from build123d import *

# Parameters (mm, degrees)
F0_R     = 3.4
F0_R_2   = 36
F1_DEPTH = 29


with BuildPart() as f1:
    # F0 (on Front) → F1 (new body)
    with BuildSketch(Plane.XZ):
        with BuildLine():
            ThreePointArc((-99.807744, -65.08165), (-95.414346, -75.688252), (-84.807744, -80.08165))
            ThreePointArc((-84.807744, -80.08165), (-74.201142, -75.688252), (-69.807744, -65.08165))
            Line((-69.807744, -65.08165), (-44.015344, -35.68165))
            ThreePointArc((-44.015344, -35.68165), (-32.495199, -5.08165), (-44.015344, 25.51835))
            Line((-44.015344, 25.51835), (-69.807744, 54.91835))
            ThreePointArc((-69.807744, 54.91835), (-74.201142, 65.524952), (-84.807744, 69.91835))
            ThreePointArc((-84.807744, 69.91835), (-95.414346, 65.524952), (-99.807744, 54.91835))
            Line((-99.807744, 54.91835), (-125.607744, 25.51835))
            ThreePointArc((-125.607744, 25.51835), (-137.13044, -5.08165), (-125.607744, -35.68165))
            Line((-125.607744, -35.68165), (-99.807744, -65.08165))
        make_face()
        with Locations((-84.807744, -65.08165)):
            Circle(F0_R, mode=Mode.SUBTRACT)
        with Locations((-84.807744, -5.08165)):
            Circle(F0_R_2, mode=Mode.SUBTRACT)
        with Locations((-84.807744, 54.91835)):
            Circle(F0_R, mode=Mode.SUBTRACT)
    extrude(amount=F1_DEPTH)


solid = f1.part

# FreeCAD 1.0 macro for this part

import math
import FreeCAD as App
import Part
import Sketcher
from FreeCAD import Vector
Q = App.Units.Quantity

doc = App.newDocument("Part")
body = doc.addObject("PartDesign::Body", "Body")

# Sketch on XZ plane
sketch1 = body.newObject("Sketcher::SketchObject", "Sketch")
sketch1.AttachmentSupport = (doc.getObject("XZ_Plane"), [""])
sketch1.MapMode = "FlatFace"
sketch1.addGeometry(Part.ArcOfCircle(Part.Circle(Vector(-84.8, -65.1, 0), Vector(0, 0, 1), 15), math.radians(180), math.radians(270)), False)
sketch1.addGeometry(Part.ArcOfCircle(Part.Circle(Vector(-84.8, -65.1, 0), Vector(0, 0, 1), 15), math.radians(-90), math.radians(0)), False)
sketch1.addGeometry(Part.LineSegment(Vector(-69.8, -65.1, 0), Vector(-44, -35.7, 0)), False)
sketch1.addGeometry(Part.ArcOfCircle(Part.Circle(Vector(-78.9, -5.1, 0), Vector(0, 0, 1), 46.4), math.radians(-41), math.radians(41)), False)
sketch1.addGeometry(Part.LineSegment(Vector(-44, 25.5, 0), Vector(-69.8, 54.9, 0)), False)
sketch1.addGeometry(Part.ArcOfCircle(Part.Circle(Vector(-84.8, 54.9, 0), Vector(0, 0, 1), 15), math.radians(0), math.radians(90)), False)
sketch1.addGeometry(Part.ArcOfCircle(Part.Circle(Vector(-84.8, 54.9, 0), Vector(0, 0, 1), 15), math.radians(90), math.radians(180)), False)
sketch1.addGeometry(Part.LineSegment(Vector(-99.8, 54.9, 0), Vector(-125.6, 25.5, 0)), False)
sketch1.addGeometry(Part.ArcOfCircle(Part.Circle(Vector(-90.7, -5.1, 0), Vector(0, 0, 1), 46.4), math.radians(139), math.radians(221)), False)
sketch1.addGeometry(Part.LineSegment(Vector(-125.6, -35.7, 0), Vector(-99.8, -65.1, 0)), False)
sketch1.addGeometry(Part.Circle(Vector(-84.8, -65.1, 0), Vector(0, 0, 1), 3.4), False)
sketch1.addGeometry(Part.Circle(Vector(-84.8, -5.1, 0), Vector(0, 0, 1), 36), False)
sketch1.addGeometry(Part.Circle(Vector(-84.8, 54.9, 0), Vector(0, 0, 1), 3.4), False)
sketch1.addConstraint(Sketcher.Constraint("Tangent", 0, 2, 1, 1))
sketch1.addConstraint(Sketcher.Constraint("Coincident", 1, 2, 2, 1))
sketch1.addConstraint(Sketcher.Constraint("Tangent", 2, 2, 3, 1))
sketch1.addConstraint(Sketcher.Constraint("Tangent", 3, 2, 4, 1))
sketch1.addConstraint(Sketcher.Constraint("Coincident", 4, 2, 5, 1))
sketch1.addConstraint(Sketcher.Constraint("Tangent", 5, 2, 6, 1))
sketch1.addConstraint(Sketcher.Constraint("Coincident", 6, 2, 7, 1))
sketch1.addConstraint(Sketcher.Constraint("Tangent", 7, 2, 8, 1))
sketch1.addConstraint(Sketcher.Constraint("Tangent", 8, 2, 9, 1))
sketch1.addConstraint(Sketcher.Constraint("Coincident", 9, 2, 0, 1))
sketch1.addConstraint(Sketcher.Constraint("Coincident", 10, 3, 0, 3))
sketch1.addConstraint(Sketcher.Constraint("Coincident", 12, 3, 5, 3))
sketch1.addConstraint(Sketcher.Constraint("Equal", 0, 1))
sketch1.addConstraint(Sketcher.Constraint("Equal", 1, 5))
sketch1.addConstraint(Sketcher.Constraint("Equal", 5, 6))
sketch1.addConstraint(Sketcher.Constraint("Equal", 10, 12))
sketch1.addConstraint(Sketcher.Constraint("Horizontal", 3, 3, 8, 3))
sketch1.addConstraint(Sketcher.Constraint("Horizontal", 8, 3, 11, 3))
sketch1.addConstraint(Sketcher.Constraint("Horizontal", 10, 3, 1, 2))
sketch1.addConstraint(Sketcher.Constraint("Horizontal", 12, 3, 4, 2))
sketch1.addConstraint(Sketcher.Constraint("Horizontal", 4, 2, 6, 2))
sketch1.addConstraint(Sketcher.Constraint("Horizontal", 3, 2, 7, 2))
sketch1.addConstraint(Sketcher.Constraint("Horizontal", 2, 2, 8, 2))
sketch1.addConstraint(Sketcher.Constraint("Horizontal", 1, 2, 9, 2))
sketch1.addConstraint(Sketcher.Constraint("Vertical", 10, 3, 11, 3))
sketch1.addConstraint(Sketcher.Constraint("Vertical", 12, 3, 0, 2))
sketch1.addConstraint(Sketcher.Constraint("Vertical", 2, 2, 3, 2))
sketch1.addConstraint(Sketcher.Constraint("Vertical", 0, 2, 5, 2))
sketch1.addConstraint(Sketcher.Constraint("Diameter", 11, Q("72 mm")))
sketch1.addConstraint(Sketcher.Constraint("Radius", 0, Q("14.999999 mm")))
sketch1.addConstraint(Sketcher.Constraint("Diameter", 10, Q("6.8 mm")))
sketch1.addConstraint(Sketcher.Constraint("DistanceY", 1, 3, 3, 3, Q("60.000001 mm")))
sketch1.addConstraint(Sketcher.Constraint("DistanceY", 1, 2, 2, 2, Q("29.4 mm")))
sketch1.addConstraint(Sketcher.Constraint("DistanceX", 7, 2, 6, 2, Q("25.8 mm")))
sketch1.addConstraint(Sketcher.Constraint("Radius", 3, Q("46.400186 mm")))
sketch1.addConstraint(Sketcher.Constraint("DistanceY", 0, 3, -1, 1, Q("65.081651 mm")))
sketch1.addConstraint(Sketcher.Constraint("DistanceX", 0, 3, -1, 1, Q("84.807745 mm")))
pad1 = body.newObject("PartDesign::Pad", "Pad")
pad1.Profile = sketch1
pad1.Length = 29

doc.recompute()
